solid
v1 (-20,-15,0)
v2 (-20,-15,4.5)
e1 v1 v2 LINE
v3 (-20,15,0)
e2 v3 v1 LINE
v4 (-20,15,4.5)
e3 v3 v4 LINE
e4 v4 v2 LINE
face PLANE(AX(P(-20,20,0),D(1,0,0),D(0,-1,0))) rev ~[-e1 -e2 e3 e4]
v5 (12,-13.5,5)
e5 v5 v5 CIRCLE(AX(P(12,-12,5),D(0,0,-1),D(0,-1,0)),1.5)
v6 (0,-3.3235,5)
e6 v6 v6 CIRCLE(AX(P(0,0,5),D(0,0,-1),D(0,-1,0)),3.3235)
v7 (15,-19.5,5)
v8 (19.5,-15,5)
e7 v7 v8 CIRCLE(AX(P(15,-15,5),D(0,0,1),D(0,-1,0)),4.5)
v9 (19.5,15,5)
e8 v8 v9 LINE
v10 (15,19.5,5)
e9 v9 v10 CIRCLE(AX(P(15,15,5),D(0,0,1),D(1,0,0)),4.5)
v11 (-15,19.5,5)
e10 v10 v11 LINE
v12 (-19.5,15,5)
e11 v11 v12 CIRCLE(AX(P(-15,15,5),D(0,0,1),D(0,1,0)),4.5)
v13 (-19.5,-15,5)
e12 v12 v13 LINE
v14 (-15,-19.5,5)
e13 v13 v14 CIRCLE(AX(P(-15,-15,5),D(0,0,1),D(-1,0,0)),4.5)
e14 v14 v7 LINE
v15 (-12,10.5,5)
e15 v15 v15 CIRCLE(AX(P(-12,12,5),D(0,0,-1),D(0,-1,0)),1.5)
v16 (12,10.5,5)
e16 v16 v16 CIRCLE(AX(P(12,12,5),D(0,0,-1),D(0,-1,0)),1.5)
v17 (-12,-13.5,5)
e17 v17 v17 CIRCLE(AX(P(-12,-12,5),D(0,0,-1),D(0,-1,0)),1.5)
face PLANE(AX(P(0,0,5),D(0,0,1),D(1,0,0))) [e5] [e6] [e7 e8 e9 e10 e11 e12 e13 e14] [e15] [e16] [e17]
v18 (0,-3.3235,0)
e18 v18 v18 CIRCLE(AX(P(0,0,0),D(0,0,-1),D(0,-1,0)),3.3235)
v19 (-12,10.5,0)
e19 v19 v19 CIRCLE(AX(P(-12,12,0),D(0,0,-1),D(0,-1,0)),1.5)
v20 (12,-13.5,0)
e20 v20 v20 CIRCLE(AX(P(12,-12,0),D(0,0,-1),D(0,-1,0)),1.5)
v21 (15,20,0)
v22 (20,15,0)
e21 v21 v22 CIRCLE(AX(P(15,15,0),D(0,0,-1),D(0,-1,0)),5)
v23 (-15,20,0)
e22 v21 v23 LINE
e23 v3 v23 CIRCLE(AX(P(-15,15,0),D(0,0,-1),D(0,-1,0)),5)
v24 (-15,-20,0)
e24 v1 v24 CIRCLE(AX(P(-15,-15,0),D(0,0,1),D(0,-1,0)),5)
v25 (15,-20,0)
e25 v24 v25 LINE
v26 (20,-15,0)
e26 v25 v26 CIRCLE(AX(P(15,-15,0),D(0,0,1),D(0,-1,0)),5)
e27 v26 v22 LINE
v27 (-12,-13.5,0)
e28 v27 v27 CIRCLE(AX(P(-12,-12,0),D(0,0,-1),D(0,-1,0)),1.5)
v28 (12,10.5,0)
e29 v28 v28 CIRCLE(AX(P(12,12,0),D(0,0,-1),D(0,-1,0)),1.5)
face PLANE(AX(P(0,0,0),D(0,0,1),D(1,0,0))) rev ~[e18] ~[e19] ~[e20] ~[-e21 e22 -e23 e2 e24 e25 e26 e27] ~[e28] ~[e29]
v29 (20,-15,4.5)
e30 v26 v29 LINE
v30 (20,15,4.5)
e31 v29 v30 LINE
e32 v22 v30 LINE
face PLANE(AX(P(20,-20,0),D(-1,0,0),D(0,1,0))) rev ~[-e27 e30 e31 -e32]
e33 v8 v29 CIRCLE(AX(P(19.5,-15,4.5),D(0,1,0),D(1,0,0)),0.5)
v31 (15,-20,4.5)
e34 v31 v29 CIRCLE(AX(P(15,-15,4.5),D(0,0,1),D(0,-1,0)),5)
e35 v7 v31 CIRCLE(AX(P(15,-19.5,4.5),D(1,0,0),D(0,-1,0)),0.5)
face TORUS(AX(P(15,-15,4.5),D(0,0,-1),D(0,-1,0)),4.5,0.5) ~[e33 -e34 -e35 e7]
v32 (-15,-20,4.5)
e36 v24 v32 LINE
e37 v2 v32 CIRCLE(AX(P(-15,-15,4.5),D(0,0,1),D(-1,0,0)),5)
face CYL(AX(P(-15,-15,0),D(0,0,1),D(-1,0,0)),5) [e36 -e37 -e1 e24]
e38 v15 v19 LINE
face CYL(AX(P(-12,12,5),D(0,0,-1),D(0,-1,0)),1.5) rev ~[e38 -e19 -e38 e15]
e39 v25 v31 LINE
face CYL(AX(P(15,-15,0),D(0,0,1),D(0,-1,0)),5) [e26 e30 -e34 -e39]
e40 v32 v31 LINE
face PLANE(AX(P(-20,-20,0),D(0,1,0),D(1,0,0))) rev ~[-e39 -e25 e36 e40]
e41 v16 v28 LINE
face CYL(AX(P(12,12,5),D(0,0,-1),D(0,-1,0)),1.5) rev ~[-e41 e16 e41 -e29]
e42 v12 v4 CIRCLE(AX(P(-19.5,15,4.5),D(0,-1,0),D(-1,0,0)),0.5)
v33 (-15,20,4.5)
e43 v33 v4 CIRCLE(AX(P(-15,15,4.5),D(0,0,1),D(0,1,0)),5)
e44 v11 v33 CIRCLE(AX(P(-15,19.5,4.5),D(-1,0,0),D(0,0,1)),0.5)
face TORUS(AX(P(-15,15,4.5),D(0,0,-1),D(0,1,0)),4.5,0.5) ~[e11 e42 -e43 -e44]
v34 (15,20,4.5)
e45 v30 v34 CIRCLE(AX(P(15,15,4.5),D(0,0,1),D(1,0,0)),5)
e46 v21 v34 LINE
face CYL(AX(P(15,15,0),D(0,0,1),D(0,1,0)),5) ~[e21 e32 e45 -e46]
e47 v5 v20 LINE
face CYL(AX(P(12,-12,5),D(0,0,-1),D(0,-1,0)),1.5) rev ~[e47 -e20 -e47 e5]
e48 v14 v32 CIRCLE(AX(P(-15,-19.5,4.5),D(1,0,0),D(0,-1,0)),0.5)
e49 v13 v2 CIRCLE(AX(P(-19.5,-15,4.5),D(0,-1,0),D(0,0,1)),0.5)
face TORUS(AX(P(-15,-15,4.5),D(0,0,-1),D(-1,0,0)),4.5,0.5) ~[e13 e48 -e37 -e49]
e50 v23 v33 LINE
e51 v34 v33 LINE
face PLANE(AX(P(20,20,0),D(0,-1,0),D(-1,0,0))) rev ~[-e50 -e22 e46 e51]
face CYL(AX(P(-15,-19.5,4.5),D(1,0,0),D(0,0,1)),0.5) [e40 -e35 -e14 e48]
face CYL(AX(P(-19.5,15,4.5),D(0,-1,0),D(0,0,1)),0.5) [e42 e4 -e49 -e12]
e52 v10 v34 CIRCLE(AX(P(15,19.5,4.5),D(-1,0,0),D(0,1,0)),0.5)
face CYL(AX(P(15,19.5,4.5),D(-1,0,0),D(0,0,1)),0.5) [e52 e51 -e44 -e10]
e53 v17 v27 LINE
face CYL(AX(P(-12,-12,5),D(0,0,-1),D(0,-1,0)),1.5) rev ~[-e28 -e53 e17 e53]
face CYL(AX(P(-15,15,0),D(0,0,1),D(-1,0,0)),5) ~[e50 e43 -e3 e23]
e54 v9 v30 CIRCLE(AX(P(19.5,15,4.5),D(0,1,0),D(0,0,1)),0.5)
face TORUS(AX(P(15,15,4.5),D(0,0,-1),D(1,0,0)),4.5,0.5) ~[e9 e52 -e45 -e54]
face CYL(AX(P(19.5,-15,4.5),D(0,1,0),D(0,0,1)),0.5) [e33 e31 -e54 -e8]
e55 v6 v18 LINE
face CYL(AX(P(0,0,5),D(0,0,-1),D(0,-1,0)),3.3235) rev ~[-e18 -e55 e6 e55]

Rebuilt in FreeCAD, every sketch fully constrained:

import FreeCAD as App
import Part
import Sketcher
Q = App.Units.Quantity


def edges_at(feature, points):
    """Names of the edges that pass closest to the given points."""
    edges = feature.Shape.Edges
    near = lambda p: min(range(len(edges)), key=lambda i: edges[i].distToShape(Part.Vertex(*p))[0])
    return sorted({f"Edge{near(p) + 1}" for p in points})

doc = App.newDocument("Part")
body = doc.addObject("PartDesign::Body", "Body")

# Sketch on XY plane
sketch1 = body.newObject("Sketcher::SketchObject", "Sketch")
sketch1.AttachmentSupport = (doc.getObject("XY_Plane"), [""])
sketch1.MapMode = "FlatFace"
sketch1.addGeometry([
    Part.LineSegment(App.Vector(-20, 20, 0), App.Vector(-20, -20, 0)),
    Part.LineSegment(App.Vector(-20, -20, 0), App.Vector(20, -20, 0)),
    Part.LineSegment(App.Vector(20, -20, 0), App.Vector(20, 20, 0)),
    Part.LineSegment(App.Vector(20, 20, 0), App.Vector(-20, 20, 0)),
], False)
sketch1.addConstraint([
    Sketcher.Constraint("Coincident", 0, 2, 1, 1),
    Sketcher.Constraint("Coincident", 1, 2, 2, 1),
    Sketcher.Constraint("Coincident", 2, 2, 3, 1),
    Sketcher.Constraint("Coincident", 3, 2, 0, 1),
    Sketcher.Constraint("Vertical", 0),
    Sketcher.Constraint("Horizontal", 1),
    Sketcher.Constraint("Vertical", 2),
    Sketcher.Constraint("Horizontal", 3),
    Sketcher.Constraint("Symmetric", 0, 2, 2, 2, -1, 1),
    Sketcher.Constraint("Equal", 3, 0),
    Sketcher.Constraint("DistanceX", 1, 1, 1, 2, Q("40 mm")),
])
pad1 = body.newObject("PartDesign::Pad", "Pad")
pad1.Profile = sketch1
pad1.Length = 5

# Sketch on XY plane
sketch2 = body.newObject("Sketcher::SketchObject", "Sketch001")
sketch2.AttachmentSupport = (doc.getObject("XY_Plane"), [""])
sketch2.MapMode = "FlatFace"
sketch2.AttachmentOffset = App.Placement(App.Vector(0, 0, 5), App.Rotation())
sketch2.addGeometry([
    Part.Circle(App.Vector(-12, 12, 0), App.Vector(0, 0, 1), 1.5),
    Part.Circle(App.Vector(12, 12, 0), App.Vector(0, 0, 1), 1.5),
    Part.Circle(App.Vector(12, -12, 0), App.Vector(0, 0, 1), 1.5),
    Part.Circle(App.Vector(-12, -12, 0), App.Vector(0, 0, 1), 1.5),
], False)
sketch2.addConstraint([
    Sketcher.Constraint("Equal", 0, 1),
    Sketcher.Constraint("Equal", 1, 2),
    Sketcher.Constraint("Equal", 2, 3),
    Sketcher.Constraint("Symmetric", 0, 3, 2, 3, -1, 1),
    Sketcher.Constraint("Symmetric", 1, 3, 3, 3, -1, 1),
    Sketcher.Constraint("Symmetric", 0, 3, 1, 3, -2),
    Sketcher.Constraint("Diameter", 0, Q("3 mm")),
    Sketcher.Constraint("DistanceX", 0, 3, -1, 1, Q("12 mm")),
    Sketcher.Constraint("DistanceY", -1, 1, 0, 3, Q("12 mm")),
])
doc.recompute()
hole = body.newObject("PartDesign::Hole", "Hole")
hole.Profile = sketch2
hole.ThreadType = "None"
hole.Diameter = 3
hole.DepthType = "Dimension"
hole.Depth = 5
hole.DrillPoint = "Flat"

# Sketch on XY plane
sketch3 = body.newObject("Sketcher::SketchObject", "Sketch002")
sketch3.AttachmentSupport = (doc.getObject("XY_Plane"), [""])
sketch3.MapMode = "FlatFace"
sketch3.AttachmentOffset = App.Placement(App.Vector(0, 0, 5), App.Rotation())
sketch3.addGeometry(Part.Circle(App.Vector(0, 0, 0), App.Vector(0, 0, 1), 3.3), False)
sketch3.addConstraint([
    Sketcher.Constraint("Coincident", 0, 3, -1, 1),
    Sketcher.Constraint("Diameter", 0, Q("6.647 mm")),
])
doc.recompute()
hole2 = body.newObject("PartDesign::Hole", "Hole001")
hole2.Profile = sketch3
hole2.ThreadType = "None"
hole2.Diameter = 6.647
hole2.DepthType = "Dimension"
hole2.Depth = 5
hole2.DrillPoint = "Flat"
doc.recompute()

fillet = body.newObject("PartDesign::Fillet", "Fillet")
fillet.Base = (hole2, edges_at(hole2, [
    (20, 20, 2.5),
    (20, -20, 2.5),
    (-20, -20, 2.5),
    (-20, 20, 2.5),
]))
fillet.Radius = 5
doc.recompute()

fillet2 = body.newObject("PartDesign::Fillet", "Fillet001")
fillet2.Base = (fillet, edges_at(fillet, [
    (18.535, -18.535, 5),
    (20, 0, 5),
    (18.535, 18.535, 5),
    (0, 20, 5),
    (-18.535, 18.535, 5),
    (-20, 0, 5),
    (-18.535, -18.535, 5),
    (0, -20, 5),
]))
fillet2.Radius = 0.5

doc.recompute()
